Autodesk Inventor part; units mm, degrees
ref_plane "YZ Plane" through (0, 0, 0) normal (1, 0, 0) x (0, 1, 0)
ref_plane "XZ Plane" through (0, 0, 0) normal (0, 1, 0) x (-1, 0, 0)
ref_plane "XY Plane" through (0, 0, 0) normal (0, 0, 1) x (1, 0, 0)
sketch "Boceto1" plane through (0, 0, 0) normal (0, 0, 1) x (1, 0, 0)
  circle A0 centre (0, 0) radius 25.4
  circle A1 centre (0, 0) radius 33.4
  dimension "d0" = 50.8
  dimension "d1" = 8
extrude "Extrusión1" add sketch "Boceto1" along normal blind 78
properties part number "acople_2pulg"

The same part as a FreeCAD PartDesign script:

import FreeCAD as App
import Part
import Sketcher
from FreeCAD import Vector
Q = App.Units.Quantity

doc = App.newDocument("Part")
body = doc.addObject("PartDesign::Body", "Body")

# Sketch on XY plane
sketch1 = body.newObject("Sketcher::SketchObject", "Sketch")
sketch1.AttachmentSupport = (doc.getObject("XY_Plane"), [""])
sketch1.MapMode = "FlatFace"
sketch1.addGeometry(Part.Circle(Vector(0, 0, 0), Vector(0, 0, 1), 33.4), False)
sketch1.addGeometry(Part.Circle(Vector(0, 0, 0), Vector(0, 0, 1), 25.4), False)
sketch1.addConstraint(Sketcher.Constraint("Coincident", 0, 3, -1, 1))
sketch1.addConstraint(Sketcher.Constraint("Coincident", 1, 3, -1, 1))
sketch1.addConstraint(Sketcher.Constraint("Diameter", 1, Q("50.8 mm")))
sketch1.addConstraint(Sketcher.Constraint("Diameter", 0, Q("66.8 mm")))
pad1 = body.newObject("PartDesign::Pad", "Pad")
pad1.Profile = sketch1
pad1.Length = 78

doc.recompute()
